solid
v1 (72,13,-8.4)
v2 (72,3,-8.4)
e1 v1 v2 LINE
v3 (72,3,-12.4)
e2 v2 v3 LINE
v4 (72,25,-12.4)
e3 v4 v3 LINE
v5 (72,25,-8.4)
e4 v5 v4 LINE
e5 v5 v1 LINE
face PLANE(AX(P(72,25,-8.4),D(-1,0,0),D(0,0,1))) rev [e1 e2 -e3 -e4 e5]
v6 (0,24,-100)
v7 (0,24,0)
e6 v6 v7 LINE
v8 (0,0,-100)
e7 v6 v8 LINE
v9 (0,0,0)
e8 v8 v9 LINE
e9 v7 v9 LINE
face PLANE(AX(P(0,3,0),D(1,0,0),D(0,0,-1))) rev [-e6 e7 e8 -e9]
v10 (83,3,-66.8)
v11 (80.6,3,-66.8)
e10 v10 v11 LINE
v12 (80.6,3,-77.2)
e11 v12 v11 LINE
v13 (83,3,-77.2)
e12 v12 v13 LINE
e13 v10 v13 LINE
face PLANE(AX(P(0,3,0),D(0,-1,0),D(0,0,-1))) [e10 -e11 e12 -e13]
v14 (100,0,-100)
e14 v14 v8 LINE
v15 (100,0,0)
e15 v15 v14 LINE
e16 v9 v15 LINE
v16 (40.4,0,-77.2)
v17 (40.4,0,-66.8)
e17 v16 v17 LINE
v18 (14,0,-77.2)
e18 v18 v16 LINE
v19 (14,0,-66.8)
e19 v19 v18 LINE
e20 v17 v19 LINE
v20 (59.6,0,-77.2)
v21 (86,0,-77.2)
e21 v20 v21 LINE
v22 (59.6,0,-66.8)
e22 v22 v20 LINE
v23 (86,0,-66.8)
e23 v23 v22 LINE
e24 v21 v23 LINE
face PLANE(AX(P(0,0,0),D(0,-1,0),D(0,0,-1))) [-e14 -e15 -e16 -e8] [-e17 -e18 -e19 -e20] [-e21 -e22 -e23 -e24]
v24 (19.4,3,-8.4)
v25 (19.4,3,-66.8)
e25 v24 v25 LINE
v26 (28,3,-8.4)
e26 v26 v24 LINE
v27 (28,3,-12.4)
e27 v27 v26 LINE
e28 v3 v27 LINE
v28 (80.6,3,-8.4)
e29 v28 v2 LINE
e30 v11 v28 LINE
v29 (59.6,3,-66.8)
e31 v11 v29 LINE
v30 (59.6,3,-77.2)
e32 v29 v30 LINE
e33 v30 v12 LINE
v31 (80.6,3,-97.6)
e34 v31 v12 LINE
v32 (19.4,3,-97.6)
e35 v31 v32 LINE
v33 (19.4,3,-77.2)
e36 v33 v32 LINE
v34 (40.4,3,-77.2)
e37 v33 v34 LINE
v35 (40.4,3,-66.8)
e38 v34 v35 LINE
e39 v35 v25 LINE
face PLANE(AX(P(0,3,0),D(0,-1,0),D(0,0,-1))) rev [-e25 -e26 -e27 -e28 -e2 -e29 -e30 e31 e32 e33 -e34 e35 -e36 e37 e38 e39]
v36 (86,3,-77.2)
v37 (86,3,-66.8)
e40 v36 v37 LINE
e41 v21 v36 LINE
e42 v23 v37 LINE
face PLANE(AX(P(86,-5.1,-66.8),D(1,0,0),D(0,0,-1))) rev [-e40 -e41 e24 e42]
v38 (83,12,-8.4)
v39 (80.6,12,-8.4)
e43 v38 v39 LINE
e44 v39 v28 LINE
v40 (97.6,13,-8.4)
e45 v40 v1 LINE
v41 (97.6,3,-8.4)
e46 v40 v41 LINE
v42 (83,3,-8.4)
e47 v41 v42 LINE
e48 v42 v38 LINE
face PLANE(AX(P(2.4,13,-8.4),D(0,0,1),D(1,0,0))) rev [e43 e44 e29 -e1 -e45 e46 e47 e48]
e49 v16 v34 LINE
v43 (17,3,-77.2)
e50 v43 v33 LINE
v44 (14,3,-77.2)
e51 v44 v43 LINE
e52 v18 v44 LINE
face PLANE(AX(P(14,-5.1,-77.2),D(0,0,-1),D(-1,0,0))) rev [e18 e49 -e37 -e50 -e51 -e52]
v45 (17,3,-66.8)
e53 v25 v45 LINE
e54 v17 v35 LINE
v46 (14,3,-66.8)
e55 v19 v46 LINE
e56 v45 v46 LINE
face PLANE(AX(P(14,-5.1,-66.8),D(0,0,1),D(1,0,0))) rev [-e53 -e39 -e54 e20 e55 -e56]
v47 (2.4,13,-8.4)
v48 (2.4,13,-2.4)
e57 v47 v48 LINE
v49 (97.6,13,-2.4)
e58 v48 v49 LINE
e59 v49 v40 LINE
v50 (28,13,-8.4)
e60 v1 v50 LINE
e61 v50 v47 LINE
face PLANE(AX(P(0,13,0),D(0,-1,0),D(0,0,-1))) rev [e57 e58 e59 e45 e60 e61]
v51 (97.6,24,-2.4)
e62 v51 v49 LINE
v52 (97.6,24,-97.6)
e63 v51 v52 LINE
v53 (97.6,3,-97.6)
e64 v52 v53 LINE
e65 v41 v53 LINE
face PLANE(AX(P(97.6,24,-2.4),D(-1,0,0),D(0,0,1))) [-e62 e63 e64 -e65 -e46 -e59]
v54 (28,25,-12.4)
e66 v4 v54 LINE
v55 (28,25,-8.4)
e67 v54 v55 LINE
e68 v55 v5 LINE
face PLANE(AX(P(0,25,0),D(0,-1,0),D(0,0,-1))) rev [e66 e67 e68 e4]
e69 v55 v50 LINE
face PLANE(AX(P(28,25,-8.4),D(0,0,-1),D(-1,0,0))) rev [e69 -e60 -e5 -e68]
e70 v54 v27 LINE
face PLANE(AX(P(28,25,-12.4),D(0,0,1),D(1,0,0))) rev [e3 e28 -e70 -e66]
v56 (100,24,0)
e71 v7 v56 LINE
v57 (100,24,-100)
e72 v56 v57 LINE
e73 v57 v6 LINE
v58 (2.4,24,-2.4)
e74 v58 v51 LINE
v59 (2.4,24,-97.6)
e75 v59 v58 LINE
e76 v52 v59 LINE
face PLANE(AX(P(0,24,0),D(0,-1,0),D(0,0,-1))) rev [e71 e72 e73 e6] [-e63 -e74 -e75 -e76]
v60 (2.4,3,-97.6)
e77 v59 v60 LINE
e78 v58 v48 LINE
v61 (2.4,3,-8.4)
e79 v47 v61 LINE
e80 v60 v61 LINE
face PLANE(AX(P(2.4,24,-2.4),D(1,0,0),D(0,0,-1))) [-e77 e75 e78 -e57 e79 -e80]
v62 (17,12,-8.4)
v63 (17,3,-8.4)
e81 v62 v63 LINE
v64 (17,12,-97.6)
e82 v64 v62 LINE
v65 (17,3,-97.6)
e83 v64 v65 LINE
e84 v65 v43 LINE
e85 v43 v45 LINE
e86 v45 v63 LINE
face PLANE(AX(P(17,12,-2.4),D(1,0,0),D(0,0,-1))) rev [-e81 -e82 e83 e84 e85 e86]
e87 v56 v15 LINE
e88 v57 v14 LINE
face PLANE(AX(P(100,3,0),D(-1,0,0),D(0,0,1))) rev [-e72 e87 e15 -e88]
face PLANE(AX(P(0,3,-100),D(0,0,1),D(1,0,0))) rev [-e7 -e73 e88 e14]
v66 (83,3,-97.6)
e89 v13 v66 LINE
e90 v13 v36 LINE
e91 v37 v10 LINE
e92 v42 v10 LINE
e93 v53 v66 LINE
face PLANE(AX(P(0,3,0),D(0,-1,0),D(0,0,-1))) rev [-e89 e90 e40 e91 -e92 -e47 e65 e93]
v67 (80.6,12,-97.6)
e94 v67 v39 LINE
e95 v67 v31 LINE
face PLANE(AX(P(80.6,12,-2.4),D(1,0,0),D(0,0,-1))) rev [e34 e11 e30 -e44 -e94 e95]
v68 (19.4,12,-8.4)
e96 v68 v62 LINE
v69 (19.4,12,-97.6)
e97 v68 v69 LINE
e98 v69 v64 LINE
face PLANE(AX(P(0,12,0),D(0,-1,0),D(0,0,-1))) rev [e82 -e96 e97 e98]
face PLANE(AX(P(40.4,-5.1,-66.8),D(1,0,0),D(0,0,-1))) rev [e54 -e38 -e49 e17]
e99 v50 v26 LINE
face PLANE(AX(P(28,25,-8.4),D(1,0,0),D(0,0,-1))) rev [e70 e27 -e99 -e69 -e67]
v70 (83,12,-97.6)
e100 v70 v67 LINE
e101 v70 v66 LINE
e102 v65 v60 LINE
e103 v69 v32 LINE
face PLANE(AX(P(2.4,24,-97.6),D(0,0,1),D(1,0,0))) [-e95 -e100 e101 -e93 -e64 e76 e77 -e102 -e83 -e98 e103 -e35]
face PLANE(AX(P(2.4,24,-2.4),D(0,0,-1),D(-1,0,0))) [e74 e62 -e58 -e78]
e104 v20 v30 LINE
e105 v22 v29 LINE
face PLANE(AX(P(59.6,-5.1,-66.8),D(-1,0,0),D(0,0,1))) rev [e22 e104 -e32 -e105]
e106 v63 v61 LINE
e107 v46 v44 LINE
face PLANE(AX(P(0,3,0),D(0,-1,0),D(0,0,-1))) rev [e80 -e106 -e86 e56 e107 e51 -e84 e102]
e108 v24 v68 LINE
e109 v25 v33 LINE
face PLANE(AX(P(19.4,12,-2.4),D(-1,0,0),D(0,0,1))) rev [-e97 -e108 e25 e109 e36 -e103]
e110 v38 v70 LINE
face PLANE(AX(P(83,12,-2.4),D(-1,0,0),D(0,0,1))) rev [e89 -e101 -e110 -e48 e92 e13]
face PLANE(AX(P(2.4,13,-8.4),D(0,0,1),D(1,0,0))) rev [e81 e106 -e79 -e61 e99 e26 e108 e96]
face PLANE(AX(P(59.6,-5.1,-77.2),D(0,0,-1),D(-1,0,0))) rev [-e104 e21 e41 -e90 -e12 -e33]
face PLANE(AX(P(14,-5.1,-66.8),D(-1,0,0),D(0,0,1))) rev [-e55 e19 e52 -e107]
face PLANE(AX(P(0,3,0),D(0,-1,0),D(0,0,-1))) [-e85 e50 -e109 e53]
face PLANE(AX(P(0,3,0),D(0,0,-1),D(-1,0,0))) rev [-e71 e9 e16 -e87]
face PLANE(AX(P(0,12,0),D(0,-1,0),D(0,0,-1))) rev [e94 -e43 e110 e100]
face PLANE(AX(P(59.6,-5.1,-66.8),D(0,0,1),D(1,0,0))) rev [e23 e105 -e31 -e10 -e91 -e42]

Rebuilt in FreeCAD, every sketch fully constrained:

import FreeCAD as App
import Part
import Sketcher

V = App.Vector
Q = App.Units.Quantity


def add_polygon(sketch, points):
    """Adds a closed chain of lines whose ends are joined by coincident constraints."""
    first, n = sketch.GeometryCount, len(points)
    for a, b in zip(points, points[1:] + points[:1]):
        sketch.addGeometry(Part.LineSegment(App.Vector(*a, 0), App.Vector(*b, 0)), False)
    for i in range(n):
        sketch.addConstraint(Sketcher.Constraint("Coincident", first + i, 2, first + (i + 1) % n, 1))

doc = App.newDocument("Part")
params = doc.addObject("Spreadsheet::Sheet", "Params")
for row, (alias, value) in enumerate([
    ("sketch1_width", "100 mm"),
    ("pad1_length", "3 mm"),
    ("sketch2_width", "100 mm"),
    ("sketch2_width2", "95.2 mm"),
    ("pad2_length", "21 mm"),
    ("sketch3_width", "26.4 mm"),
    ("sketch3_height", "10.4 mm"),
    ("pocket1_length", "12.4 mm"),
    ("sketch4_width", "2.4 mm"),
    ("sketch4_height", "95.2 mm"),
    ("pad3_length", "9 mm"),
    ("sketch5_height", "6 mm"),
    ("sketch5_width", "95.2 mm"),
    ("pad4_length", "10 mm"),
    ("sketch6_width", "44 mm"),
    ("sketch6_height", "4 mm"),
    ("pad5_length", "22 mm"),
], start=1):
    params.set(f"A{row}", alias)
    params.set(f"B{row}", "=" + value)
    params.setAlias(f"B{row}", alias)

body = doc.addObject("PartDesign::Body", "Body")

# Sketch on XZ plane
sketch1 = body.newObject("Sketcher::SketchObject", "Sketch")
sketch1.AttachmentSupport = (doc.getObject("XZ_Plane"), [""])
sketch1.MapMode = "FlatFace"
add_polygon(sketch1, [(0, -100), (0, 0), (100, 0), (100, -100)])  # lines 0-3
sketch1.addConstraint([
    Sketcher.Constraint("Vertical", 0),
    Sketcher.Constraint("Horizontal", 1),
    Sketcher.Constraint("Vertical", 2),
    Sketcher.Constraint("Horizontal", 3),
    Sketcher.Constraint("Coincident", 0, 2, -1, 1),
    Sketcher.Constraint("Equal", 3, 0),
    Sketcher.Constraint("DistanceX", 1, 1, 1, 2, Q("100 mm")),
])
sketch1.setExpression("Constraints[10]", "Params.sketch1_width")
pad1 = body.newObject("PartDesign::Pad", "Pad")
pad1.Profile = sketch1
pad1.setExpression("Length", "Params.pad1_length")
pad1.Reversed = True

# Sketch on XZ plane
sketch2 = body.newObject("Sketcher::SketchObject", "Sketch001")
sketch2.AttachmentSupport = (doc.getObject("XZ_Plane"), [""])
sketch2.MapMode = "FlatFace"
sketch2.AttachmentOffset = App.Placement(V(0, 0, -3), App.Rotation())
add_polygon(sketch2, [(0, -100), (0, 0), (100, 0), (100, -100)])  # lines 0-3
add_polygon(sketch2, [(98, -2), (2, -2), (2, -98), (98, -98)])  # lines 4-7
sketch2.addConstraint([
    Sketcher.Constraint("Vertical", 0),
    Sketcher.Constraint("Horizontal", 1),
    Sketcher.Constraint("Vertical", 2),
    Sketcher.Constraint("Horizontal", 3),
    Sketcher.Constraint("Horizontal", 4),
    Sketcher.Constraint("Vertical", 5),
    Sketcher.Constraint("Horizontal", 6),
    Sketcher.Constraint("Vertical", 7),
    Sketcher.Constraint("Coincident", 0, 2, -1, 1),
    Sketcher.Constraint("Equal", 3, 0),
    Sketcher.Constraint("Equal", 6, 5),
    Sketcher.Constraint("DistanceX", 1, 1, 1, 2, Q("100 mm")),
    Sketcher.Constraint("DistanceX", 4, 2, 4, 1, Q("95.2 mm")),
    Sketcher.Constraint("DistanceX", -1, 1, 4, 2, Q("2.4 mm")),
    Sketcher.Constraint("DistanceY", 4, 2, -1, 1, Q("2.4 mm")),
])
sketch2.setExpression("Constraints[19]", "Params.sketch2_width")
sketch2.setExpression("Constraints[20]", "Params.sketch2_width2")
pad2 = body.newObject("PartDesign::Pad", "Pad001")
pad2.Profile = sketch2
pad2.setExpression("Length", "Params.pad2_length")
pad2.Reversed = True

# Sketch on XZ plane
sketch3 = body.newObject("Sketcher::SketchObject", "Sketch002")
sketch3.AttachmentSupport = (doc.getObject("XZ_Plane"), [""])
sketch3.MapMode = "FlatFace"
sketch3.AttachmentOffset = App.Placement(V(0, 0, -7.3), App.Rotation())
add_polygon(sketch3, [(14, -77), (14, -67), (40, -67), (40, -77)])  # lines 0-3
add_polygon(sketch3, [(60, -77), (60, -67), (86, -67), (86, -77)])  # lines 4-7
sketch3.addConstraint([
    Sketcher.Constraint("Vertical", 0),
    Sketcher.Constraint("Horizontal", 1),
    Sketcher.Constraint("Vertical", 2),
    Sketcher.Constraint("Horizontal", 3),
    Sketcher.Constraint("Vertical", 4),
    Sketcher.Constraint("Horizontal", 5),
    Sketcher.Constraint("Vertical", 6),
    Sketcher.Constraint("Horizontal", 7),
    Sketcher.Constraint("Horizontal", 1, 2, 4, 2),
    Sketcher.Constraint("Horizontal", 3, 2, 6, 2),
    Sketcher.Constraint("Equal", 3, 5),
    Sketcher.Constraint("DistanceX", 1, 1, 1, 2, Q("26.4 mm")),
    Sketcher.Constraint("DistanceY", 0, 1, 0, 2, Q("10.4 mm")),
    Sketcher.Constraint("DistanceX", -1, 1, 0, 2, Q("14 mm")),
    Sketcher.Constraint("DistanceX", -1, 1, 5, 2, Q("86 mm")),
    Sketcher.Constraint("DistanceY", 0, 2, -1, 1, Q("66.8 mm")),
])
sketch3.setExpression("Constraints[19]", "Params.sketch3_width")
sketch3.setExpression("Constraints[20]", "Params.sketch3_height")
pocket1 = body.newObject("PartDesign::Pocket", "Pocket")
pocket1.Profile = sketch3
pocket1.setExpression("Length", "Params.pocket1_length")
pocket1.Reversed = True

# Sketch on XZ plane
sketch4 = body.newObject("Sketcher::SketchObject", "Sketch003")
sketch4.AttachmentSupport = (doc.getObject("XZ_Plane"), [""])
sketch4.MapMode = "FlatFace"
sketch4.AttachmentOffset = App.Placement(V(0, 0, -3), App.Rotation())
add_polygon(sketch4, [(17, -97.6), (17, -2.4), (19.4, -2.4), (19.4, -97.6)])  # lines 0-3
add_polygon(sketch4, [(80.6, -97.6), (80.6, -2.4), (83, -2.4), (83, -97.6)])  # lines 4-7
sketch4.addConstraint([
    Sketcher.Constraint("Vertical", 0),
    Sketcher.Constraint("Horizontal", 1),
    Sketcher.Constraint("Vertical", 2),
    Sketcher.Constraint("Horizontal", 3),
    Sketcher.Constraint("Vertical", 4),
    Sketcher.Constraint("Horizontal", 5),
    Sketcher.Constraint("Vertical", 6),
    Sketcher.Constraint("Horizontal", 7),
    Sketcher.Constraint("Horizontal", 1, 2, 4, 2),
    Sketcher.Constraint("Horizontal", 3, 2, 6, 2),
    Sketcher.Constraint("Equal", 3, 5),
    Sketcher.Constraint("DistanceX", 1, 1, 1, 2, Q("2.4 mm")),
    Sketcher.Constraint("DistanceY", 0, 1, 0, 2, Q("95.2 mm")),
    Sketcher.Constraint("DistanceX", -1, 1, 0, 2, Q("17 mm")),
    Sketcher.Constraint("DistanceX", -1, 1, 5, 2, Q("83 mm")),
    Sketcher.Constraint("DistanceY", 0, 2, -1, 1, Q("2.4 mm")),
])
sketch4.setExpression("Constraints[19]", "Params.sketch4_width")
sketch4.setExpression("Constraints[20]", "Params.sketch4_height")
pad3 = body.newObject("PartDesign::Pad", "Pad002")
pad3.Profile = sketch4
pad3.setExpression("Length", "Params.pad3_length")
pad3.Reversed = True

# Sketch on XZ plane
sketch5 = body.newObject("Sketcher::SketchObject", "Sketch004")
sketch5.AttachmentSupport = (doc.getObject("XZ_Plane"), [""])
sketch5.MapMode = "FlatFace"
sketch5.AttachmentOffset = App.Placement(V(0, 0, -3), App.Rotation())
add_polygon(sketch5, [(2, -8), (2, -2), (98, -2), (98, -8)])  # lines 0-3
sketch5.addConstraint([
    Sketcher.Constraint("Vertical", 0),
    Sketcher.Constraint("Horizontal", 1),
    Sketcher.Constraint("Vertical", 2),
    Sketcher.Constraint("Horizontal", 3),
    Sketcher.Constraint("DistanceY", 0, 1, 0, 2, Q("6 mm")),
    Sketcher.Constraint("DistanceX", 1, 1, 1, 2, Q("95.2 mm")),
    Sketcher.Constraint("DistanceX", -1, 1, 0, 2, Q("2.4 mm")),
    Sketcher.Constraint("DistanceY", 0, 2, -1, 1, Q("2.4 mm")),
])
sketch5.setExpression("Constraints[8]", "Params.sketch5_height")
sketch5.setExpression("Constraints[9]", "Params.sketch5_width")
pad4 = body.newObject("PartDesign::Pad", "Pad003")
pad4.Profile = sketch5
pad4.setExpression("Length", "Params.pad4_length")
pad4.Reversed = True

# Sketch on XZ plane
sketch6 = body.newObject("Sketcher::SketchObject", "Sketch005")
sketch6.AttachmentSupport = (doc.getObject("XZ_Plane"), [""])
sketch6.MapMode = "FlatFace"
sketch6.AttachmentOffset = App.Placement(V(0, 0, -3), App.Rotation())
add_polygon(sketch6, [(28, -12.4), (28, -8.4), (72, -8.4), (72, -12.4)])  # lines 0-3
sketch6.addConstraint([
    Sketcher.Constraint("Vertical", 0),
    Sketcher.Constraint("Horizontal", 1),
    Sketcher.Constraint("Vertical", 2),
    Sketcher.Constraint("Horizontal", 3),
    Sketcher.Constraint("DistanceX", 1, 1, 1, 2, Q("44 mm")),
    Sketcher.Constraint("DistanceY", 0, 1, 0, 2, Q("4 mm")),
    Sketcher.Constraint("DistanceX", -1, 1, 0, 2, Q("28 mm")),
    Sketcher.Constraint("DistanceY", 0, 2, -1, 1, Q("8.4 mm")),
])
sketch6.setExpression("Constraints[8]", "Params.sketch6_width")
sketch6.setExpression("Constraints[9]", "Params.sketch6_height")
pad5 = body.newObject("PartDesign::Pad", "Pad004")
pad5.Profile = sketch6
pad5.setExpression("Length", "Params.pad5_length")
pad5.Reversed = True

doc.recompute()
